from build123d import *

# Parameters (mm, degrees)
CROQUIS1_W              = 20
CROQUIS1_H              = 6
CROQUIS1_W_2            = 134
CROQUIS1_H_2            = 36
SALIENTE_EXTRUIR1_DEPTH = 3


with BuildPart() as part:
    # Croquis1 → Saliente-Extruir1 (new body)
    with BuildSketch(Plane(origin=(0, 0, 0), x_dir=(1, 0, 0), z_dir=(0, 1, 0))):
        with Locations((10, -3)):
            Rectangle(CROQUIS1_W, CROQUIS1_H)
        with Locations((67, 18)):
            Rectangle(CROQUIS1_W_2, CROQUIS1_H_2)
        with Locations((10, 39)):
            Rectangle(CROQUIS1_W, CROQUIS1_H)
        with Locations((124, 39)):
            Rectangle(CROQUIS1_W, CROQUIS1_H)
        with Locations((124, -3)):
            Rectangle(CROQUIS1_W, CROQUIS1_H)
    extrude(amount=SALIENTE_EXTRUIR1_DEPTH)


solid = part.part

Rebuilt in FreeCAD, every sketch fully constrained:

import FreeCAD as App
import Part
import Sketcher
from FreeCAD import Vector

doc = App.newDocument("Part")
body = doc.addObject("PartDesign::Body", "Body")

sketch1 = body.newObject("Sketcher::SketchObject", "Sketch")
sketch1.AttachmentSupport = (doc.getObject("XZ_Plane"), [""])
sketch1.MapMode = "FlatFace"
sketch1.addGeometry([
    Part.LineSegment(Vector(0, 6, 0), Vector(20, 6, 0)),
    Part.LineSegment(Vector(20, 6, 0), Vector(20, 0, 0)),
    Part.LineSegment(Vector(20, 0, 0), Vector(114, 0, 0)),
    Part.LineSegment(Vector(114, 0, 0), Vector(114, 6, 0)),
    Part.LineSegment(Vector(114, 6, 0), Vector(134, 6, 0)),
    Part.LineSegment(Vector(134, 6, 0), Vector(134, -42, 0)),
    Part.LineSegment(Vector(134, -42, 0), Vector(114, -42, 0)),
    Part.LineSegment(Vector(114, -42, 0), Vector(114, -36, 0)),
    Part.LineSegment(Vector(114, -36, 0), Vector(20, -36, 0)),
    Part.LineSegment(Vector(20, -36, 0), Vector(20, -42, 0)),
    Part.LineSegment(Vector(20, -42, 0), Vector(0, -42, 0)),
    Part.LineSegment(Vector(0, -42, 0), Vector(0, 6, 0)),
], False)
sketch1.addConstraint([
    Sketcher.Constraint("Coincident", 0, 2, 1, 1),
    Sketcher.Constraint("Coincident", 1, 2, 2, 1),
    Sketcher.Constraint("Coincident", 2, 2, 3, 1),
    Sketcher.Constraint("Coincident", 3, 2, 4, 1),
    Sketcher.Constraint("Coincident", 4, 2, 5, 1),
    Sketcher.Constraint("Coincident", 5, 2, 6, 1),
    Sketcher.Constraint("Coincident", 6, 2, 7, 1),
    Sketcher.Constraint("Coincident", 7, 2, 8, 1),
    Sketcher.Constraint("Coincident", 8, 2, 9, 1),
    Sketcher.Constraint("Coincident", 9, 2, 10, 1),
    Sketcher.Constraint("Coincident", 10, 2, 11, 1),
    Sketcher.Constraint("Coincident", 11, 2, 0, 1),
    Sketcher.Constraint("Horizontal", 0),
    Sketcher.Constraint("Vertical", 1),
    Sketcher.Constraint("Horizontal", 2),
    Sketcher.Constraint("Vertical", 3),
    Sketcher.Constraint("Horizontal", 4),
    Sketcher.Constraint("Vertical", 5),
    Sketcher.Constraint("Horizontal", 6),
    Sketcher.Constraint("Vertical", 7),
    Sketcher.Constraint("Horizontal", 8),
    Sketcher.Constraint("Vertical", 9),
    Sketcher.Constraint("Horizontal", 10),
    Sketcher.Constraint("Vertical", 11),
    Sketcher.Constraint("PointOnObject", 1, 2, -1),
    Sketcher.Constraint("PointOnObject", 10, 2, -2),
    Sketcher.Constraint("Horizontal", 0, 2, 3, 2),
    Sketcher.Constraint("Horizontal", 6, 2, 9, 2),
    Sketcher.Constraint("Vertical", 3, 2, 6, 2),
    Sketcher.Constraint("Vertical", 1, 2, 8, 2),
    Sketcher.Constraint("Equal", 0, 4),
    Sketcher.Constraint("Equal", 3, 7),
    Sketcher.Constraint("DistanceX", 0, 1, 0, 2, 20.0),
    Sketcher.Constraint("DistanceX", 2, 1, 2, 2, 94.0),
    Sketcher.Constraint("DistanceY", 1, 2, 1, 1, 6.0),
    Sketcher.Constraint("DistanceY", 5, 2, 5, 1, 48.0),
])
pad1 = body.newObject("PartDesign::Pad", "Pad")
pad1.Profile = sketch1
pad1.Length = 3
pad1.Reversed = True

doc.recompute()
